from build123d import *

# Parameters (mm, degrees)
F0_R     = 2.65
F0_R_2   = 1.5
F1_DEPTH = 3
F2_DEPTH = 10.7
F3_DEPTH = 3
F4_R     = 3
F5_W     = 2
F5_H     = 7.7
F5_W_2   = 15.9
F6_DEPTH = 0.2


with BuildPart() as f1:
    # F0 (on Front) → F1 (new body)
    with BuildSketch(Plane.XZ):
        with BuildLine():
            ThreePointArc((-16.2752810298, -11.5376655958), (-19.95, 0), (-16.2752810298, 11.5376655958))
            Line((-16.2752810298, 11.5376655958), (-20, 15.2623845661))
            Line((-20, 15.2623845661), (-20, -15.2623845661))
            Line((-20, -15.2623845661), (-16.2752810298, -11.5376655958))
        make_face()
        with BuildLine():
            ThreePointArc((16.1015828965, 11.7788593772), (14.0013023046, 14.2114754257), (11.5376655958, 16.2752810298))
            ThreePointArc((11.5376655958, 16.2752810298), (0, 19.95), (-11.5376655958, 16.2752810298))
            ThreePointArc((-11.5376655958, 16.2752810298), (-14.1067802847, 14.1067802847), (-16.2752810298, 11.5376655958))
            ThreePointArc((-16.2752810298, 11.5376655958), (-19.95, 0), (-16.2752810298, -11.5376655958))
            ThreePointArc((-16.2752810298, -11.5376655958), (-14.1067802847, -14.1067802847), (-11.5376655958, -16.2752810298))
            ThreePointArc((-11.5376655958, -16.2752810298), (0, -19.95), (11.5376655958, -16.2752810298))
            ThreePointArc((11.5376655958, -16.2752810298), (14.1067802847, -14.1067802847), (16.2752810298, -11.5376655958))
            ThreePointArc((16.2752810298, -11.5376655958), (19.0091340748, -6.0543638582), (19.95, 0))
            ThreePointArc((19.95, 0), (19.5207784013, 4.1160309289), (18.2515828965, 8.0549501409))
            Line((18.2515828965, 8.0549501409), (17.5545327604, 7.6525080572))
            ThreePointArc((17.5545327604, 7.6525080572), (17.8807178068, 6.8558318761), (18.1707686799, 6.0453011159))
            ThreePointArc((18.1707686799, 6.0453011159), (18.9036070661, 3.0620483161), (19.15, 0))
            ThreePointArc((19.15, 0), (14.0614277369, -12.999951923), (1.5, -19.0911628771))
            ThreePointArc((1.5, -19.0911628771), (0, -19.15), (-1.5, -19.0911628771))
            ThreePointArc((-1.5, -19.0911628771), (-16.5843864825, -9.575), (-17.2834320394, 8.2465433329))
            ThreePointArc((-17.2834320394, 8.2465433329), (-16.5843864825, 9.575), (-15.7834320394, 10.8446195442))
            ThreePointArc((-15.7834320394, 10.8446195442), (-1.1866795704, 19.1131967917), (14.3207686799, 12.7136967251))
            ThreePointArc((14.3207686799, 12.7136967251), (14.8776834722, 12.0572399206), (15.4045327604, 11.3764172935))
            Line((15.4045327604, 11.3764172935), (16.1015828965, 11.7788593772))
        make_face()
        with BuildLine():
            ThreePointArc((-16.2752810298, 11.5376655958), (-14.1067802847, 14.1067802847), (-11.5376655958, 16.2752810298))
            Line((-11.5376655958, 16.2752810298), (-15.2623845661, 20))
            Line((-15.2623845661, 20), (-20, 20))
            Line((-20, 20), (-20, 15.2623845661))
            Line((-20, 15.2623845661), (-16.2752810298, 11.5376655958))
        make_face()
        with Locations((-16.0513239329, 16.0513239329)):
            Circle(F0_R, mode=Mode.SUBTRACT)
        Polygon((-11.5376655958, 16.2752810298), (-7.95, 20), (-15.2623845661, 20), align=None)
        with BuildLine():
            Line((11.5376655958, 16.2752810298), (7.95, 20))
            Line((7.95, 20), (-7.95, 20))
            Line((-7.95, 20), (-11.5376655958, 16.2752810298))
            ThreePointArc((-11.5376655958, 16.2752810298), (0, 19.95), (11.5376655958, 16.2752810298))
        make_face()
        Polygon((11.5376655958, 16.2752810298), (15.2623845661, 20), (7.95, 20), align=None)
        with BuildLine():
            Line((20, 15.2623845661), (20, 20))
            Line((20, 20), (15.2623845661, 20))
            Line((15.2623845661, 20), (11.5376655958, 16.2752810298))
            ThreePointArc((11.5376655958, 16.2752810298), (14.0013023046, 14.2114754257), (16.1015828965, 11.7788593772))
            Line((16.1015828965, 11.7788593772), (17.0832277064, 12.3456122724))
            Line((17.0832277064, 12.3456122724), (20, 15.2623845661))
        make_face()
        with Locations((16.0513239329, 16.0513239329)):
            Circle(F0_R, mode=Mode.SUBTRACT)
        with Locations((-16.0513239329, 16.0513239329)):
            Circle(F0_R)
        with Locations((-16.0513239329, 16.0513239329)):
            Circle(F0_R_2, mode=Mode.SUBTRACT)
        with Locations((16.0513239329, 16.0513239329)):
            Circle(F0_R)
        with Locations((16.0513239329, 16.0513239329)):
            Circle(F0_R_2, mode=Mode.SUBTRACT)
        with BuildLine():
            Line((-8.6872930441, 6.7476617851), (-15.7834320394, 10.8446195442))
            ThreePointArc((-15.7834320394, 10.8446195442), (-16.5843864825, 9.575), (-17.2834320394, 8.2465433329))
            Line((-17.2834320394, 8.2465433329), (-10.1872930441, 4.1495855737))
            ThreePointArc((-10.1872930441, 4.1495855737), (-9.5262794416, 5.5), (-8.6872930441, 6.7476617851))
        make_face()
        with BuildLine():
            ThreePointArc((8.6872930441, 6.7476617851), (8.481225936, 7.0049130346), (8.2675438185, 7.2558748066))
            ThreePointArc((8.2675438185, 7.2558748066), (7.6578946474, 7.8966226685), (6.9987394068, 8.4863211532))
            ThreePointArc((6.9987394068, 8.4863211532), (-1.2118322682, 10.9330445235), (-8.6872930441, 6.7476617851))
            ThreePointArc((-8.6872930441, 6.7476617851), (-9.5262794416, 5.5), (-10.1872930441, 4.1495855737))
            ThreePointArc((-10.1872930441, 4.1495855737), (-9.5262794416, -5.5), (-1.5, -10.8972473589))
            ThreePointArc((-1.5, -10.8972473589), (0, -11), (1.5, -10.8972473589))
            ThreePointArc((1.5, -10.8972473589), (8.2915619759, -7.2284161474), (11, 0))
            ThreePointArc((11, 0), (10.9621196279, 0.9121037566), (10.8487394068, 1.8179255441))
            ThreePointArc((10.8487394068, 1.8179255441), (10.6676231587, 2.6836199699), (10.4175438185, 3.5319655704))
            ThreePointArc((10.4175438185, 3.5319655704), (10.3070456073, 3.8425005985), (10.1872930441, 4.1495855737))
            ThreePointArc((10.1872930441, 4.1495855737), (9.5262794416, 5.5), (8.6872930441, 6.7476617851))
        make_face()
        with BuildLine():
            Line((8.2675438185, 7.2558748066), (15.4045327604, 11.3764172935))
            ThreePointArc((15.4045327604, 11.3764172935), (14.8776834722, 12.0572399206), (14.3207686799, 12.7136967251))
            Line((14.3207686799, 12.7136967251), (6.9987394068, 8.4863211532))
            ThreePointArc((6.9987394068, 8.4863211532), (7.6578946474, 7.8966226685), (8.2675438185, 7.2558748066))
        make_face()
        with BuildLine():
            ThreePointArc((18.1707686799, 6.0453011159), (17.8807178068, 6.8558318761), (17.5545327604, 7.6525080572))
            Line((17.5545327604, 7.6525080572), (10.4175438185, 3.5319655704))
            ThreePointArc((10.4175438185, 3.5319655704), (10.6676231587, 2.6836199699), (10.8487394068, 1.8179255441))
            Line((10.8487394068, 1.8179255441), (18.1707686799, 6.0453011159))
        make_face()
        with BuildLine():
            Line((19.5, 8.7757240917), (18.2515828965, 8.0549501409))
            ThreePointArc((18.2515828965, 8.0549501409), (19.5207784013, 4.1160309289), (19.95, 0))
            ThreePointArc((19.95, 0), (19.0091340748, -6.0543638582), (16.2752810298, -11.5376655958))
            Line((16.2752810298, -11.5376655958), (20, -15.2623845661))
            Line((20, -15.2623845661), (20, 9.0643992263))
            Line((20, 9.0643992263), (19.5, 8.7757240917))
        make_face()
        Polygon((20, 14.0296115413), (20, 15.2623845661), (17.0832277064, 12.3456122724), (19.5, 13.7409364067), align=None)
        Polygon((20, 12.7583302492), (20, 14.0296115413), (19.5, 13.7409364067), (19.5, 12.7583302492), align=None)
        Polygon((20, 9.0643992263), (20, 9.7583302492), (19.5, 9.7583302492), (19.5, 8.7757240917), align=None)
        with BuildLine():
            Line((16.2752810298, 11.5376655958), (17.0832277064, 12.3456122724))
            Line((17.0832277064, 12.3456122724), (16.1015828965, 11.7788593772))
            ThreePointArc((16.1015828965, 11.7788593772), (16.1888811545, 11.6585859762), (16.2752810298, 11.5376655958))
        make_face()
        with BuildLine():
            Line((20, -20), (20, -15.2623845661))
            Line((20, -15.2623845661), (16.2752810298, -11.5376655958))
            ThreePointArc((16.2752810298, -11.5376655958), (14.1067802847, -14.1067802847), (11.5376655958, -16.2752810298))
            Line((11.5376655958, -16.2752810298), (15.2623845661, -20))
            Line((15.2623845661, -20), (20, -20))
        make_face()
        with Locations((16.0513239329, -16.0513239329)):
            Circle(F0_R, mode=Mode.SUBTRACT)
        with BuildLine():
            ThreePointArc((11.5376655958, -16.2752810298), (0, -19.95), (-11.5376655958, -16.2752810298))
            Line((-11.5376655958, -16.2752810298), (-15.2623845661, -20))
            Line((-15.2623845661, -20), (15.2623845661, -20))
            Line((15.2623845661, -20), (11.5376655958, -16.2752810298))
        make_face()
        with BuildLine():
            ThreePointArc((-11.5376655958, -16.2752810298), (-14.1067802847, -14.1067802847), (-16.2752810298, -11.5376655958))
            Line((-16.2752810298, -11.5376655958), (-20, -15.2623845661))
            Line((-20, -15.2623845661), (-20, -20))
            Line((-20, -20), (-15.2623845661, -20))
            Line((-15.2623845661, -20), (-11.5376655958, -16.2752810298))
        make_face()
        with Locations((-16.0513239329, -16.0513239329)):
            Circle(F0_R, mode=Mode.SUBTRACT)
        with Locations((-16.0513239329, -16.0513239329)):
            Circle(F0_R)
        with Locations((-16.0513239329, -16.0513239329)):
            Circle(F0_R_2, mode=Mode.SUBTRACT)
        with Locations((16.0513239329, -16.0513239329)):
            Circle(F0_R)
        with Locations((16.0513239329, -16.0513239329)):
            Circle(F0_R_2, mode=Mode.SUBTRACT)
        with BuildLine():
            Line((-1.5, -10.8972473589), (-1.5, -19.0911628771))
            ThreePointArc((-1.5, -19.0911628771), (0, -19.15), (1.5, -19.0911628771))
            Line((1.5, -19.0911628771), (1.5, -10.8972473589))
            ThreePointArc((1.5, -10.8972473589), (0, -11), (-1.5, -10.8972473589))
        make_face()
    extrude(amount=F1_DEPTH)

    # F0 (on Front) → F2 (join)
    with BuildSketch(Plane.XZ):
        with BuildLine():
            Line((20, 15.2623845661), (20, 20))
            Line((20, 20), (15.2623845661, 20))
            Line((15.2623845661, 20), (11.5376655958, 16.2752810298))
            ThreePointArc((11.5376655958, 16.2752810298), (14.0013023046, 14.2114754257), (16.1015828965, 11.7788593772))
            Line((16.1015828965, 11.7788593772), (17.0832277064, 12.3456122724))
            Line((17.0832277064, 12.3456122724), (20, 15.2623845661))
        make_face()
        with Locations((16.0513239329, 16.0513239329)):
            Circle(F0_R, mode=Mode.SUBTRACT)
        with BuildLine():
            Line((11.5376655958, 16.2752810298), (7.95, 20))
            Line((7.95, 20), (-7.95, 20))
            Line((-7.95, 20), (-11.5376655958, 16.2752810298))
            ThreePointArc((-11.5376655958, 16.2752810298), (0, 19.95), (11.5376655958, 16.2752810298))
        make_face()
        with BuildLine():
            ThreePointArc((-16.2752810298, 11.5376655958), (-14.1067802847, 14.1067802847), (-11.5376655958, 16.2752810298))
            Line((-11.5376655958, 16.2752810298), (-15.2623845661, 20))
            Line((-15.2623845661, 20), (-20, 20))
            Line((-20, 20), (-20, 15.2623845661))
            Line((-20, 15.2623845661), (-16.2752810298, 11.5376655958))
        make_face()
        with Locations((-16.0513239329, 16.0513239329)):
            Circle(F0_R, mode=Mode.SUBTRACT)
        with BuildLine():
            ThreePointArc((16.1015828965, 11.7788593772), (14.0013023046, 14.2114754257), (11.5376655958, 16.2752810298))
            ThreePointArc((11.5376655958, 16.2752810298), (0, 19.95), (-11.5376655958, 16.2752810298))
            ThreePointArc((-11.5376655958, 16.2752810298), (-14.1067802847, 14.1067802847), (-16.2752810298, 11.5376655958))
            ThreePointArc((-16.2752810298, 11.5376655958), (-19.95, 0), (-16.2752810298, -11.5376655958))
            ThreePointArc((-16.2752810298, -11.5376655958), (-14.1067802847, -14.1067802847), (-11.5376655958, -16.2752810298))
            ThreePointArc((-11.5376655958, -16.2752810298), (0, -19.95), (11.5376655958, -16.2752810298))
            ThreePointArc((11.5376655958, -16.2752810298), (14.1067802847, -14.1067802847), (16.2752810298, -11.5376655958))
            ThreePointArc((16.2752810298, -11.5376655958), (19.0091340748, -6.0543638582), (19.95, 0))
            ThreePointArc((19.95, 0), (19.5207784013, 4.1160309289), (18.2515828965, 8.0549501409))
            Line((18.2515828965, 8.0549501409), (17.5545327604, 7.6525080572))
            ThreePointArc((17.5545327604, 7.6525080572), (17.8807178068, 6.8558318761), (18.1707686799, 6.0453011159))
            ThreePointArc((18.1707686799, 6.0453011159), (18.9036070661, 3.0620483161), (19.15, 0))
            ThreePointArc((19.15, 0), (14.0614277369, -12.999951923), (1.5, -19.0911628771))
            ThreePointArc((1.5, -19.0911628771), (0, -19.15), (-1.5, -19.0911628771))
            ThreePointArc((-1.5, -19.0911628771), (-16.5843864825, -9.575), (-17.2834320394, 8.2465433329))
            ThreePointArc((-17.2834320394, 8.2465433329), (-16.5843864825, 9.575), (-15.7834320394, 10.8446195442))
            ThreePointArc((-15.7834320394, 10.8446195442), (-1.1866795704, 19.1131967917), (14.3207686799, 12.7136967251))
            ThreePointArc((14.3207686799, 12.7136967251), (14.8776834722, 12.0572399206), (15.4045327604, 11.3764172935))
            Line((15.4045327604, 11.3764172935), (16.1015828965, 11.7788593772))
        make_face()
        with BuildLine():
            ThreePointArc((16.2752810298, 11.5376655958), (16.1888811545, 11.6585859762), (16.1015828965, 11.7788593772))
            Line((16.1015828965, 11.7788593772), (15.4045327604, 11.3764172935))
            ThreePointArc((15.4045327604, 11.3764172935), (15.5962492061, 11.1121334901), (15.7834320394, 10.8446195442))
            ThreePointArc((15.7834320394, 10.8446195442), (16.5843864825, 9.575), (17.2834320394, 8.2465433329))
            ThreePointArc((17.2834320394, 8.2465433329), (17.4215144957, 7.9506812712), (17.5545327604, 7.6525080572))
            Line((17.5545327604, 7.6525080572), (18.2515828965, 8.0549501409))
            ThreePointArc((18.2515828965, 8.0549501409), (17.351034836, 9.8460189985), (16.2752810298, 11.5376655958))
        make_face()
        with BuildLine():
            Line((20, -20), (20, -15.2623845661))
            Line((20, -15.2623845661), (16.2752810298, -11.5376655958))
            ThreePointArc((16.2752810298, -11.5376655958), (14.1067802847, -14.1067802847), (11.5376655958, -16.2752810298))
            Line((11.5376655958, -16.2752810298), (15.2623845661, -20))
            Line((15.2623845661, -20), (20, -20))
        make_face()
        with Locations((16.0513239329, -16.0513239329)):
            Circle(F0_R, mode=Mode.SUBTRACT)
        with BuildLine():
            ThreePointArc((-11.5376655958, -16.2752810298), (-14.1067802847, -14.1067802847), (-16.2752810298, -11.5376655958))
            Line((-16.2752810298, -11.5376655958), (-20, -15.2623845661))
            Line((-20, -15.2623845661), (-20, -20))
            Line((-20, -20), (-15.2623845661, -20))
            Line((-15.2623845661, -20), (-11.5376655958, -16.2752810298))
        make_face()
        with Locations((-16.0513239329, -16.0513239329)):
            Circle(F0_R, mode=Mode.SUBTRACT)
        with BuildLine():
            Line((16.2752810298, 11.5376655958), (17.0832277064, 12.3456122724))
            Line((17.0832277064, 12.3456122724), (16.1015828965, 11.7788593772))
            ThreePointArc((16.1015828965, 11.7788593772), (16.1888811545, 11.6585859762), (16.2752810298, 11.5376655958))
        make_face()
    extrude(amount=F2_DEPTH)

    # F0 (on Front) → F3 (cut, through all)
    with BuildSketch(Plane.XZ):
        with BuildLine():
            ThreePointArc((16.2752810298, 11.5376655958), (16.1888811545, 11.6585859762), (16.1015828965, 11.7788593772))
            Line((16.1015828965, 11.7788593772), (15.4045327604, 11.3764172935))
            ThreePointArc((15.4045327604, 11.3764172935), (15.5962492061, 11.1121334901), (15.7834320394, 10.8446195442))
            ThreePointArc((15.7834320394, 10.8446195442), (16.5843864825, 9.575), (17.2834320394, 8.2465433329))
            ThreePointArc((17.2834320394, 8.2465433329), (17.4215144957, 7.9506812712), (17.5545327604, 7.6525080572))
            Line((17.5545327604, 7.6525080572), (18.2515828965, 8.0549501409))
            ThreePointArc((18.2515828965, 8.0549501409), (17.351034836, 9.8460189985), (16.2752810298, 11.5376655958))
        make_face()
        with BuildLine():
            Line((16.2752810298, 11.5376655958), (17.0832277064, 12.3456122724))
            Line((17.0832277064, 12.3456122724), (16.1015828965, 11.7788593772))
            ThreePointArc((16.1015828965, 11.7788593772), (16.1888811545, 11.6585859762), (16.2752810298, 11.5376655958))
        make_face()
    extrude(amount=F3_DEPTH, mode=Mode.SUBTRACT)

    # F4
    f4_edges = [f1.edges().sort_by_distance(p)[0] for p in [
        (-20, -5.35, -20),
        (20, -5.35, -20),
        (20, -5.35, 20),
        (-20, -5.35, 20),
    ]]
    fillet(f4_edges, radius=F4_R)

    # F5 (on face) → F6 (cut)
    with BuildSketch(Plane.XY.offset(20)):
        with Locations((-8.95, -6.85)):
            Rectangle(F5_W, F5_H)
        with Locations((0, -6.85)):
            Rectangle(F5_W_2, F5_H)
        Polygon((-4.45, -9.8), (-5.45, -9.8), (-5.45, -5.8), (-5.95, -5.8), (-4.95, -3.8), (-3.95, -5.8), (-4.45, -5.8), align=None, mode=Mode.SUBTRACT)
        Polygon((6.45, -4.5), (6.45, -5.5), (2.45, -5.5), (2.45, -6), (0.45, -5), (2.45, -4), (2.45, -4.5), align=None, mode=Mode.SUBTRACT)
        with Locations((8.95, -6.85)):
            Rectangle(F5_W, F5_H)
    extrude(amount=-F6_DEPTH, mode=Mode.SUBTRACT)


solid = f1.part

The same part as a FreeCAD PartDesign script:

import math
import FreeCAD as App
import Part
import Sketcher

V = App.Vector
Q = App.Units.Quantity


def edges_at(feature, points):
    """Names of the edges that pass closest to the given points."""
    edges = feature.Shape.Edges
    near = lambda p: min(range(len(edges)), key=lambda i: edges[i].distToShape(Part.Vertex(*p))[0])
    return sorted({f"Edge{near(p) + 1}" for p in points})


def add_polygon(sketch, points):
    """Adds a closed chain of lines whose ends are joined by coincident constraints."""
    first, n = sketch.GeometryCount, len(points)
    for a, b in zip(points, points[1:] + points[:1]):
        sketch.addGeometry(Part.LineSegment(App.Vector(*a, 0), App.Vector(*b, 0)), False)
    for i in range(n):
        sketch.addConstraint(Sketcher.Constraint("Coincident", first + i, 2, first + (i + 1) % n, 1))

doc = App.newDocument("Part")
params = doc.addObject("Spreadsheet::Sheet", "Params")
for row, (alias, value) in enumerate([
    ("sketch1_diameter", "3 mm"),
    ("sketch1_radius", "11 mm"),
    ("sketch1_width", "40 mm"),
    ("sketch1_radius2", "19.950001 mm"),
    ("sketch1_radius3", "19.15 mm"),
    ("pad1_length", "3 mm"),
    ("sketch2_diameter", "5.3 mm"),
    ("sketch2_radius", "19.95 mm"),
    ("sketch2_radius2", "19.15 mm"),
    ("sketch2_width", "15.9 mm"),
    ("pad2_length", "10.7 mm"),
    ("sketch3_radius", "19.15 mm"),
    ("sketch3_radius2", "19.95 mm"),
    ("pocket1_length", "3 mm"),
    ("fillet_radius", "3 mm"),
    ("sketch4_width", "1 mm"),
    ("sketch4_width2", "4 mm"),
    ("sketch4_width3", "19.9 mm"),
    ("sketch4_width4", "0.5 mm"),
    ("sketch4_height", "7.7 mm"),
    ("pocket2_length", "0.2 mm"),
], start=1):
    params.set(f"A{row}", alias)
    params.set(f"B{row}", "=" + value)
    params.setAlias(f"B{row}", alias)

body = doc.addObject("PartDesign::Body", "Body")

# Sketch on XZ plane
sketch1 = body.newObject("Sketcher::SketchObject", "Sketch")
sketch1.AttachmentSupport = (doc.getObject("XZ_Plane"), [""])
sketch1.MapMode = "FlatFace"
sketch1.addGeometry(Part.LineSegment(V(20, -20, 0), V(20, 9.76, 0)), False)
sketch1.addGeometry(Part.LineSegment(V(20, 9.76, 0), V(19.5, 9.76, 0)), False)
sketch1.addGeometry(Part.LineSegment(V(19.5, 9.76, 0), V(19.5, 8.78, 0)), False)
sketch1.addGeometry(Part.LineSegment(V(19.5, 8.78, 0), V(18.25, 8.05, 0)), False)
sketch1.addGeometry(Part.LineSegment(V(18.25, 8.05, 0), V(17.55, 7.65, 0)), False)
sketch1.addGeometry(Part.LineSegment(V(17.55, 7.65, 0), V(10.42, 3.53, 0)), False)
sketch1.addGeometry(Part.ArcOfCircle(Part.Circle(V(0, 0, 0), V(0, 0, 1), 11), math.radians(18.73), math.radians(22.16)), False)
sketch1.addGeometry(Part.ArcOfCircle(Part.Circle(V(0, 0, 0), V(0, 0, 1), 11), math.radians(22.16), math.radians(37.84)), False)
sketch1.addGeometry(Part.ArcOfCircle(Part.Circle(V(0, 0, 0), V(0, 0, 1), 11), math.radians(37.84), math.radians(41.27)), False)
sketch1.addGeometry(Part.LineSegment(V(8.27, 7.26, 0), V(15.4, 11.38, 0)), False)
sketch1.addGeometry(Part.LineSegment(V(15.4, 11.38, 0), V(16.1, 11.78, 0)), False)
sketch1.addGeometry(Part.ArcOfCircle(Part.Circle(V(0, 0, 0), V(0, 0, 1), 19.95), math.radians(35.33), math.radians(36.19)), False)
sketch1.addGeometry(Part.LineSegment(V(16.28, 11.54, 0), V(17.08, 12.35, 0)), False)
sketch1.addGeometry(Part.LineSegment(V(17.08, 12.35, 0), V(19.5, 13.74, 0)), False)
sketch1.addGeometry(Part.LineSegment(V(19.5, 13.74, 0), V(19.5, 12.76, 0)), False)
sketch1.addGeometry(Part.LineSegment(V(19.5, 12.76, 0), V(20, 12.76, 0)), False)
sketch1.addGeometry(Part.LineSegment(V(20, 12.76, 0), V(20, 20, 0)), False)
sketch1.addGeometry(Part.LineSegment(V(20, 20, 0), V(-20, 20, 0)), False)
sketch1.addGeometry(Part.LineSegment(V(-20, 20, 0), V(-20, -20, 0)), False)
sketch1.addGeometry(Part.LineSegment(V(-20, -20, 0), V(20, -20, 0)), False)
sketch1.addGeometry(Part.Circle(V(-16.05, -16.05, 0), V(0, 0, 1), 1.5), False)
sketch1.addGeometry(Part.ArcOfCircle(Part.Circle(V(0, 0, 0), V(0, 0, 1), 19.15), math.radians(0), math.radians(18.4)), False)
sketch1.addGeometry(Part.ArcOfCircle(Part.Circle(V(0, 0, 0), V(0, 0, 1), 19.15), math.radians(-86), math.radians(0)), False)
sketch1.addGeometry(Part.LineSegment(V(1.5, -19.09, 0), V(1.5, -10.9, 0)), False)
sketch1.addGeometry(Part.ArcOfCircle(Part.Circle(V(0, 0, 0), V(0, 0, 1), 11), math.radians(-82), math.radians(0)), False)
sketch1.addGeometry(Part.ArcOfCircle(Part.Circle(V(0, 0, 0), V(0, 0, 1), 11), math.radians(0), math.radians(9.51)), False)
sketch1.addGeometry(Part.LineSegment(V(10.85, 1.82, 0), V(18.17, 6.05, 0)), False)
sketch1.addGeometry(Part.ArcOfCircle(Part.Circle(V(0, 0, 0), V(0, 0, 1), 19.15), math.radians(154), math.radians(266)), False)
sketch1.addGeometry(Part.LineSegment(V(-17.28, 8.25, 0), V(-10.19, 4.15, 0)), False)
sketch1.addGeometry(Part.ArcOfCircle(Part.Circle(V(0, 0, 0), V(0, 0, 1), 11), math.radians(158), math.radians(262)), False)
sketch1.addGeometry(Part.LineSegment(V(-1.5, -10.9, 0), V(-1.5, -19.09, 0)), False)
sketch1.addGeometry(Part.Circle(V(16.05, -16.05, 0), V(0, 0, 1), 1.5), False)
sketch1.addGeometry(Part.Circle(V(-16.05, 16.05, 0), V(0, 0, 1), 1.5), False)
sketch1.addGeometry(Part.ArcOfCircle(Part.Circle(V(0, 0, 0), V(0, 0, 1), 11), math.radians(50), math.radians(142)), False)
sketch1.addGeometry(Part.LineSegment(V(-8.69, 6.75, 0), V(-15.78, 10.84, 0)), False)
sketch1.addGeometry(Part.ArcOfCircle(Part.Circle(V(0, 0, 0), V(0, 0, 1), 19.15), math.radians(42), math.radians(146)), False)
sketch1.addGeometry(Part.LineSegment(V(14.32, 12.71, 0), V(7, 8.49, 0)), False)
sketch1.addGeometry(Part.Circle(V(16.05, 16.05, 0), V(0, 0, 1), 1.5), False)
sketch1.addConstraint(Sketcher.Constraint("Coincident", 0, 2, 1, 1))
sketch1.addConstraint(Sketcher.Constraint("Coincident", 1, 2, 2, 1))
sketch1.addConstraint(Sketcher.Constraint("Coincident", 2, 2, 3, 1))
sketch1.addConstraint(Sketcher.Constraint("Coincident", 3, 2, 4, 1))
sketch1.addConstraint(Sketcher.Constraint("Coincident", 4, 2, 5, 1))
sketch1.addConstraint(Sketcher.Constraint("Coincident", 5, 2, 6, 1))
sketch1.addConstraint(Sketcher.Constraint("Tangent", 6, 2, 7, 1))
sketch1.addConstraint(Sketcher.Constraint("Tangent", 7, 2, 8, 1))
sketch1.addConstraint(Sketcher.Constraint("Coincident", 8, 2, 9, 1))
sketch1.addConstraint(Sketcher.Constraint("Coincident", 9, 2, 10, 1))
sketch1.addConstraint(Sketcher.Constraint("Coincident", 10, 2, 11, 2))
sketch1.addConstraint(Sketcher.Constraint("Coincident", 11, 1, 12, 1))
sketch1.addConstraint(Sketcher.Constraint("Coincident", 12, 2, 13, 1))
sketch1.addConstraint(Sketcher.Constraint("Coincident", 13, 2, 14, 1))
sketch1.addConstraint(Sketcher.Constraint("Coincident", 14, 2, 15, 1))
sketch1.addConstraint(Sketcher.Constraint("Coincident", 15, 2, 16, 1))
sketch1.addConstraint(Sketcher.Constraint("Coincident", 16, 2, 17, 1))
sketch1.addConstraint(Sketcher.Constraint("Coincident", 17, 2, 18, 1))
sketch1.addConstraint(Sketcher.Constraint("Coincident", 18, 2, 19, 1))
sketch1.addConstraint(Sketcher.Constraint("Coincident", 19, 2, 0, 1))
sketch1.addConstraint(Sketcher.Constraint("Tangent", 21, 1, 22, 2))
sketch1.addConstraint(Sketcher.Constraint("Coincident", 22, 1, 23, 1))
sketch1.addConstraint(Sketcher.Constraint("Coincident", 23, 2, 24, 1))
sketch1.addConstraint(Sketcher.Constraint("Tangent", 24, 2, 25, 1))
sketch1.addConstraint(Sketcher.Constraint("Coincident", 25, 2, 26, 1))
sketch1.addConstraint(Sketcher.Constraint("Coincident", 26, 2, 21, 2))
sketch1.addConstraint(Sketcher.Constraint("Coincident", 27, 1, 28, 1))
sketch1.addConstraint(Sketcher.Constraint("Coincident", 28, 2, 29, 1))
sketch1.addConstraint(Sketcher.Constraint("Coincident", 29, 2, 30, 1))
sketch1.addConstraint(Sketcher.Constraint("Coincident", 30, 2, 27, 2))
sketch1.addConstraint(Sketcher.Constraint("Coincident", 33, 2, 34, 1))
sketch1.addConstraint(Sketcher.Constraint("Coincident", 34, 2, 35, 2))
sketch1.addConstraint(Sketcher.Constraint("Coincident", 35, 1, 36, 1))
sketch1.addConstraint(Sketcher.Constraint("Coincident", 36, 2, 33, 1))
sketch1.addConstraint(Sketcher.Constraint("Vertical", 0))
sketch1.addConstraint(Sketcher.Constraint("Horizontal", 1))
sketch1.addConstraint(Sketcher.Constraint("Vertical", 2))
sketch1.addConstraint(Sketcher.Constraint("Vertical", 14))
sketch1.addConstraint(Sketcher.Constraint("Horizontal", 15))
sketch1.addConstraint(Sketcher.Constraint("Vertical", 16))
sketch1.addConstraint(Sketcher.Constraint("Horizontal", 17))
sketch1.addConstraint(Sketcher.Constraint("Vertical", 18))
sketch1.addConstraint(Sketcher.Constraint("Horizontal", 19))
sketch1.addConstraint(Sketcher.Constraint("Vertical", 23))
sketch1.addConstraint(Sketcher.Constraint("Vertical", 30))
sketch1.addConstraint(Sketcher.Constraint("Coincident", 6, 3, -1, 1))
sketch1.addConstraint(Sketcher.Constraint("Coincident", 8, 3, -1, 1))
sketch1.addConstraint(Sketcher.Constraint("Coincident", 11, 3, -1, 1))
sketch1.addConstraint(Sketcher.Constraint("Coincident", 21, 3, -1, 1))
sketch1.addConstraint(Sketcher.Constraint("Coincident", 24, 3, -1, 1))
sketch1.addConstraint(Sketcher.Constraint("Coincident", 27, 3, -1, 1))
sketch1.addConstraint(Sketcher.Constraint("Coincident", 29, 3, -1, 1))
sketch1.addConstraint(Sketcher.Constraint("Coincident", 33, 3, -1, 1))
sketch1.addConstraint(Sketcher.Constraint("Coincident", 35, 3, -1, 1))
sketch1.addConstraint(Sketcher.Constraint("Equal", 21, 22))
sketch1.addConstraint(Sketcher.Constraint("Equal", 8, 24))
sketch1.addConstraint(Sketcher.Constraint("Equal", 24, 25))
sketch1.addConstraint(Sketcher.Constraint("Equal", 22, 27))
sketch1.addConstraint(Sketcher.Constraint("Equal", 25, 29))
sketch1.addConstraint(Sketcher.Constraint("Equal", 20, 31))
sketch1.addConstraint(Sketcher.Constraint("Equal", 31, 32))
sketch1.addConstraint(Sketcher.Constraint("Equal", 29, 33))
sketch1.addConstraint(Sketcher.Constraint("Equal", 27, 35))
sketch1.addConstraint(Sketcher.Constraint("Equal", 32, 37))
sketch1.addConstraint(Sketcher.Constraint("Symmetric", 31, 3, 32, 3, -1, 1))
sketch1.addConstraint(Sketcher.Constraint("Symmetric", 20, 3, 37, 3, -1, 1))
sketch1.addConstraint(Sketcher.Constraint("Symmetric", 16, 2, 18, 2, -1, 1))
sketch1.addConstraint(Sketcher.Constraint("Symmetric", 20, 3, 31, 3, -2))
sketch1.addConstraint(Sketcher.Constraint("PointOnObject", 21, 1, -1))
sketch1.addConstraint(Sketcher.Constraint("PointOnObject", 24, 2, -1))
sketch1.addConstraint(Sketcher.Constraint("Parallel", 3, 4))
sketch1.addConstraint(Sketcher.Constraint("Parallel", 4, 5))
sketch1.addConstraint(Sketcher.Constraint("Parallel", 5, 9))
sketch1.addConstraint(Sketcher.Constraint("Parallel", 9, 10))
sketch1.addConstraint(Sketcher.Constraint("Parallel", 10, 13))
sketch1.addConstraint(Sketcher.Constraint("Parallel", 13, 26))
sketch1.addConstraint(Sketcher.Constraint("Parallel", 28, 34))
sketch1.addConstraint(Sketcher.Constraint("Parallel", 26, 36))
sketch1.addConstraint(Sketcher.Constraint("Horizontal", 6, 2, 28, 2))
sketch1.addConstraint(Sketcher.Constraint("Horizontal", 23, 2, 29, 2))
sketch1.addConstraint(Sketcher.Constraint("Horizontal", 7, 2, 33, 2))
sketch1.addConstraint(Sketcher.Constraint("Vertical", 2, 2, 13, 2))
sketch1.addConstraint(Sketcher.Constraint("Vertical", 0, 2, 15, 2))
sketch1.addConstraint(Sketcher.Constraint("Equal", 2, 14))
sketch1.addConstraint(Sketcher.Constraint("Equal", 19, 18))
sketch1.addConstraint(Sketcher.Constraint("Equal", 5, 9))
sketch1.addConstraint(Sketcher.Constraint("Equal", 4, 10))
sketch1.addConstraint(Sketcher.Constraint("Equal", 28, 34))
sketch1.addConstraint(Sketcher.Constraint("Equal", 26, 36))
sketch1.addConstraint(Sketcher.Constraint("Diameter", 20, Q("3 mm")))
sketch1.addConstraint(Sketcher.Constraint("Radius", 6, Q("11 mm")))
sketch1.addConstraint(Sketcher.Constraint("DistanceX", 17, 2, 17, 1, Q("40 mm")))
sketch1.addConstraint(Sketcher.Constraint("Angle", 3, Q("-150 deg")))
sketch1.addConstraint(Sketcher.Constraint("Angle", 12, Q("45 deg")))
sketch1.addConstraint(Sketcher.Constraint("Angle", 28, Q("-30 deg")))
sketch1.addConstraint(Sketcher.Constraint("Radius", 11, Q("19.950001 mm")))
sketch1.addConstraint(Sketcher.Constraint("Radius", 21, Q("19.15 mm")))
sketch1.addConstraint(Sketcher.Constraint("DistanceX", 1, 2, 1, 1, Q("0.5 mm")))
sketch1.addConstraint(Sketcher.Constraint("DistanceY", 1, 2, 14, 2, Q("3 mm")))
sketch1.addConstraint(Sketcher.Constraint("DistanceX", 29, 2, 23, 2, Q("3 mm")))
sketch1.addConstraint(Sketcher.Constraint("DistanceX", 7, 2, 6, 2, Q("1.5 mm")))
sketch1.addConstraint(Sketcher.Constraint("DistanceX", 8, 2, 5, 2, Q("2.15 mm")))
sketch1.addConstraint(Sketcher.Constraint("DistanceX", 36, 2, 25, 2, Q("3.85 mm")))
sketch1.addConstraint(Sketcher.Constraint("DistanceY", 0, 1, 0, 2, Q("29.75833 mm")))
sketch1.addConstraint(Sketcher.Constraint("DistanceY", 2, 2, 37, 3, Q("7.2756 mm")))
sketch1.addConstraint(Sketcher.Constraint("DistanceX", 10, 2, 11, 1, Q("0.173698 mm")))
sketch1.addConstraint(Sketcher.Constraint("Distance", 12, Q("1.142609 mm")))
sketch1.addConstraint(Sketcher.Constraint("DistanceY", -1, 1, 4, 2, Q("7.652508 mm")))
sketch1.addConstraint(Sketcher.Constraint("DistanceX", 37, 3, 3, 2, Q("2.200259 mm")))
sketch1.setExpression("Constraints[89]", "Params.sketch1_diameter")
sketch1.setExpression("Constraints[90]", "Params.sketch1_radius")
sketch1.setExpression("Constraints[91]", "Params.sketch1_width")
sketch1.setExpression("Constraints[95]", "Params.sketch1_radius2")
sketch1.setExpression("Constraints[96]", "Params.sketch1_radius3")
pad1 = body.newObject("PartDesign::Pad", "Pad")
pad1.Profile = sketch1
pad1.setExpression("Length", "Params.pad1_length")

# Sketch on XZ plane
sketch2 = body.newObject("Sketcher::SketchObject", "Sketch001")
sketch2.AttachmentSupport = (doc.getObject("XZ_Plane"), [""])
sketch2.MapMode = "FlatFace"
sketch2.addGeometry(Part.LineSegment(V(20, 15.3, 0), V(20, 20, 0)), False)
sketch2.addGeometry(Part.LineSegment(V(20, 20, 0), V(15.3, 20, 0)), False)
sketch2.addGeometry(Part.LineSegment(V(15.3, 20, 0), V(11.5, 16.3, 0)), False)
sketch2.addGeometry(Part.LineSegment(V(11.5, 16.3, 0), V(8, 20, 0)), False)
sketch2.addGeometry(Part.LineSegment(V(8, 20, 0), V(-8, 20, 0)), False)
sketch2.addGeometry(Part.LineSegment(V(-8, 20, 0), V(-11.5, 16.3, 0)), False)
sketch2.addGeometry(Part.LineSegment(V(-11.5, 16.3, 0), V(-15.3, 20, 0)), False)
sketch2.addGeometry(Part.LineSegment(V(-15.3, 20, 0), V(-20, 20, 0)), False)
sketch2.addGeometry(Part.LineSegment(V(-20, 20, 0), V(-20, 15.3, 0)), False)
sketch2.addGeometry(Part.LineSegment(V(-20, 15.3, 0), V(-16.3, 11.5, 0)), False)
sketch2.addGeometry(Part.ArcOfCircle(Part.Circle(V(0, 0, 0), V(0, 0, 1), 19.9), math.radians(145), math.radians(215)), False)
sketch2.addGeometry(Part.LineSegment(V(-16.3, -11.5, 0), V(-20, -15.3, 0)), False)
sketch2.addGeometry(Part.LineSegment(V(-20, -15.3, 0), V(-20, -20, 0)), False)
sketch2.addGeometry(Part.LineSegment(V(-20, -20, 0), V(-15.3, -20, 0)), False)
sketch2.addGeometry(Part.LineSegment(V(-15.3, -20, 0), V(-11.5, -16.3, 0)), False)
sketch2.addGeometry(Part.ArcOfCircle(Part.Circle(V(0, 0, 0), V(0, 0, 1), 19.9), math.radians(-125), math.radians(-55)), False)
sketch2.addGeometry(Part.LineSegment(V(11.5, -16.3, 0), V(15.3, -20, 0)), False)
sketch2.addGeometry(Part.LineSegment(V(15.3, -20, 0), V(20, -20, 0)), False)
sketch2.addGeometry(Part.LineSegment(V(20, -20, 0), V(20, -15.3, 0)), False)
sketch2.addGeometry(Part.LineSegment(V(20, -15.3, 0), V(16.3, -11.5, 0)), False)
sketch2.addGeometry(Part.ArcOfCircle(Part.Circle(V(0, 0, 0), V(0, 0, 1), 19.9), math.radians(-35), math.radians(0)), False)
sketch2.addGeometry(Part.ArcOfCircle(Part.Circle(V(0, 0, 0), V(0, 0, 1), 19.9), math.radians(0), math.radians(24)), False)
sketch2.addGeometry(Part.ArcOfCircle(Part.Circle(V(0, 0, 0), V(0, 0, 1), 20), math.radians(23.81), math.radians(35.33)), False)
sketch2.addGeometry(Part.LineSegment(V(16.3, 11.5, 0), V(17.1, 12.3, 0)), False)
sketch2.addGeometry(Part.LineSegment(V(17.1, 12.3, 0), V(20, 15.3, 0)), False)
sketch2.addGeometry(Part.Circle(V(-16.1, -16.1, 0), V(0, 0, 1), 2.6), False)
sketch2.addGeometry(Part.Circle(V(16.1, -16.1, 0), V(0, 0, 1), 2.6), False)
sketch2.addGeometry(Part.Circle(V(-16.1, 16.1, 0), V(0, 0, 1), 2.6), False)
sketch2.addGeometry(Part.ArcOfCircle(Part.Circle(V(0, 0, 0), V(0, 0, 1), 19.2), math.radians(18.4), math.radians(23.55)), False)
sketch2.addGeometry(Part.ArcOfCircle(Part.Circle(V(0, 0, 0), V(0, 0, 1), 19.2), math.radians(0), math.radians(18.4)), False)
sketch2.addGeometry(Part.ArcOfCircle(Part.Circle(V(0, 0, 0), V(0, 0, 1), 19.1), math.radians(-86), math.radians(0)), False)
sketch2.addGeometry(Part.ArcOfCircle(Part.Circle(V(0, 0, 0), V(0, 0, 1), 19.1), math.radians(-94.49), math.radians(-85.51)), False)
sketch2.addGeometry(Part.ArcOfCircle(Part.Circle(V(0, 0, 0), V(0, 0, 1), 19.1), math.radians(154), math.radians(266)), False)
sketch2.addGeometry(Part.ArcOfCircle(Part.Circle(V(0, 0, 0), V(0, 0, 1), 19.2), math.radians(145.51), math.radians(154.49)), False)
sketch2.addGeometry(Part.ArcOfCircle(Part.Circle(V(0, 0, 0), V(0, 0, 1), 19.1), math.radians(42), math.radians(146)), False)
sketch2.addGeometry(Part.ArcOfCircle(Part.Circle(V(0, 0, 0), V(0, 0, 1), 19.1), math.radians(36.45), math.radians(41.6)), False)
sketch2.addGeometry(Part.ArcOfCircle(Part.Circle(V(0, 0, 0), V(0, 0, 1), 19.2), math.radians(34.49), math.radians(36.45)), False)
sketch2.addGeometry(Part.ArcOfCircle(Part.Circle(V(0, 0, 0), V(0, 0, 1), 19.2), math.radians(25.51), math.radians(34.49)), False)
sketch2.addGeometry(Part.ArcOfCircle(Part.Circle(V(0, 0, 0), V(0, 0, 1), 19.2), math.radians(23.55), math.radians(25.51)), False)
sketch2.addGeometry(Part.Circle(V(16.1, 16.1, 0), V(0, 0, 1), 2.6), False)
sketch2.addConstraint(Sketcher.Constraint("Coincident", 0, 2, 1, 1))
sketch2.addConstraint(Sketcher.Constraint("Coincident", 1, 2, 2, 1))
sketch2.addConstraint(Sketcher.Constraint("Coincident", 2, 2, 3, 1))
sketch2.addConstraint(Sketcher.Constraint("Coincident", 3, 2, 4, 1))
sketch2.addConstraint(Sketcher.Constraint("Coincident", 4, 2, 5, 1))
sketch2.addConstraint(Sketcher.Constraint("Coincident", 5, 2, 6, 1))
sketch2.addConstraint(Sketcher.Constraint("Coincident", 6, 2, 7, 1))
sketch2.addConstraint(Sketcher.Constraint("Coincident", 7, 2, 8, 1))
sketch2.addConstraint(Sketcher.Constraint("Coincident", 8, 2, 9, 1))
sketch2.addConstraint(Sketcher.Constraint("Coincident", 9, 2, 10, 1))
sketch2.addConstraint(Sketcher.Constraint("Coincident", 10, 2, 11, 1))
sketch2.addConstraint(Sketcher.Constraint("Coincident", 11, 2, 12, 1))
sketch2.addConstraint(Sketcher.Constraint("Coincident", 12, 2, 13, 1))
sketch2.addConstraint(Sketcher.Constraint("Coincident", 13, 2, 14, 1))
sketch2.addConstraint(Sketcher.Constraint("Coincident", 14, 2, 15, 1))
sketch2.addConstraint(Sketcher.Constraint("Coincident", 15, 2, 16, 1))
sketch2.addConstraint(Sketcher.Constraint("Coincident", 16, 2, 17, 1))
sketch2.addConstraint(Sketcher.Constraint("Coincident", 17, 2, 18, 1))
sketch2.addConstraint(Sketcher.Constraint("Coincident", 18, 2, 19, 1))
sketch2.addConstraint(Sketcher.Constraint("Coincident", 19, 2, 20, 1))
sketch2.addConstraint(Sketcher.Constraint("Tangent", 20, 2, 21, 1))
sketch2.addConstraint(Sketcher.Constraint("Tangent", 21, 2, 22, 1))
sketch2.addConstraint(Sketcher.Constraint("Coincident", 22, 2, 23, 1))
sketch2.addConstraint(Sketcher.Constraint("Coincident", 23, 2, 24, 1))
sketch2.addConstraint(Sketcher.Constraint("Coincident", 24, 2, 0, 1))
sketch2.addConstraint(Sketcher.Constraint("Tangent", 28, 1, 29, 2))
sketch2.addConstraint(Sketcher.Constraint("Tangent", 29, 1, 30, 2))
sketch2.addConstraint(Sketcher.Constraint("Tangent", 30, 1, 31, 2))
sketch2.addConstraint(Sketcher.Constraint("Tangent", 31, 1, 32, 2))
sketch2.addConstraint(Sketcher.Constraint("Tangent", 32, 1, 33, 2))
sketch2.addConstraint(Sketcher.Constraint("Tangent", 33, 1, 34, 2))
sketch2.addConstraint(Sketcher.Constraint("Tangent", 34, 1, 35, 2))
sketch2.addConstraint(Sketcher.Constraint("Tangent", 35, 1, 36, 2))
sketch2.addConstraint(Sketcher.Constraint("Tangent", 36, 1, 37, 2))
sketch2.addConstraint(Sketcher.Constraint("Tangent", 37, 1, 38, 2))
sketch2.addConstraint(Sketcher.Constraint("Tangent", 38, 1, 28, 2))
sketch2.addConstraint(Sketcher.Constraint("Vertical", 0))
sketch2.addConstraint(Sketcher.Constraint("Horizontal", 1))
sketch2.addConstraint(Sketcher.Constraint("Horizontal", 4))
sketch2.addConstraint(Sketcher.Constraint("Horizontal", 7))
sketch2.addConstraint(Sketcher.Constraint("Vertical", 8))
sketch2.addConstraint(Sketcher.Constraint("Vertical", 12))
sketch2.addConstraint(Sketcher.Constraint("Horizontal", 13))
sketch2.addConstraint(Sketcher.Constraint("Horizontal", 17))
sketch2.addConstraint(Sketcher.Constraint("Vertical", 18))
sketch2.addConstraint(Sketcher.Constraint("Coincident", 10, 3, -1, 1))
sketch2.addConstraint(Sketcher.Constraint("Coincident", 15, 3, -1, 1))
sketch2.addConstraint(Sketcher.Constraint("Coincident", 20, 3, -1, 1))
sketch2.addConstraint(Sketcher.Constraint("Coincident", 22, 3, -1, 1))
sketch2.addConstraint(Sketcher.Constraint("Coincident", 28, 3, -1, 1))
sketch2.addConstraint(Sketcher.Constraint("Coincident", 30, 3, -1, 1))
sketch2.addConstraint(Sketcher.Constraint("Coincident", 32, 3, -1, 1))
sketch2.addConstraint(Sketcher.Constraint("Coincident", 34, 3, -1, 1))
sketch2.addConstraint(Sketcher.Constraint("Coincident", 36, 3, -1, 1))
sketch2.addConstraint(Sketcher.Constraint("Equal", 10, 15))
sketch2.addConstraint(Sketcher.Constraint("Equal", 15, 20))
sketch2.addConstraint(Sketcher.Constraint("Equal", 25, 26))
sketch2.addConstraint(Sketcher.Constraint("Equal", 26, 27))
sketch2.addConstraint(Sketcher.Constraint("Equal", 27, 39))
sketch2.addConstraint(Sketcher.Constraint("Symmetric", 26, 3, 27, 3, -1, 1))
sketch2.addConstraint(Sketcher.Constraint("Symmetric", 25, 3, 39, 3, -1, 1))
sketch2.addConstraint(Sketcher.Constraint("Symmetric", 0, 2, 12, 2, -1, 1))
sketch2.addConstraint(Sketcher.Constraint("Symmetric", 2, 2, 14, 2, -1, 1))
sketch2.addConstraint(Sketcher.Constraint("Symmetric", 5, 2, 15, 2, -1, 1))
sketch2.addConstraint(Sketcher.Constraint("Symmetric", 6, 2, 16, 2, -1, 1))
sketch2.addConstraint(Sketcher.Constraint("Symmetric", 8, 2, 18, 2, -1, 1))
sketch2.addConstraint(Sketcher.Constraint("Symmetric", 25, 3, 26, 3, -2))
sketch2.addConstraint(Sketcher.Constraint("Symmetric", 1, 2, 6, 2, -2))
sketch2.addConstraint(Sketcher.Constraint("Symmetric", 11, 2, 18, 2, -2))
sketch2.addConstraint(Sketcher.Constraint("PointOnObject", 20, 2, -1))
sketch2.addConstraint(Sketcher.Constraint("PointOnObject", 29, 1, -1))
sketch2.addConstraint(Sketcher.Constraint("Perpendicular", 2, 6))
sketch2.addConstraint(Sketcher.Constraint("Parallel", 6, 9))
sketch2.addConstraint(Sketcher.Constraint("Perpendicular", 9, 11))
sketch2.addConstraint(Sketcher.Constraint("Parallel", 11, 14))
sketch2.addConstraint(Sketcher.Constraint("Parallel", 16, 19))
sketch2.addConstraint(Sketcher.Constraint("Perpendicular", 19, 23))
sketch2.addConstraint(Sketcher.Constraint("Parallel", 23, 24))
sketch2.addConstraint(Sketcher.Constraint("Horizontal", 1, 2, 3, 2))
sketch2.addConstraint(Sketcher.Constraint("Horizontal", 2, 2, 5, 2))
sketch2.addConstraint(Sketcher.Constraint("Horizontal", 9, 2, 22, 2))
sketch2.addConstraint(Sketcher.Constraint("Horizontal", 30, 1, 31, 1))
sketch2.addConstraint(Sketcher.Constraint("Horizontal", 33, 1, 36, 1))
sketch2.addConstraint(Sketcher.Constraint("Horizontal", 32, 1, 37, 1))
sketch2.addConstraint(Sketcher.Constraint("Equal", 17, 0))
sketch2.addConstraint(Sketcher.Constraint("Equal", 3, 5))
sketch2.addConstraint(Sketcher.Constraint("Equal", 6, 9))
sketch2.addConstraint(Sketcher.Constraint("Diameter", 25, Q("5.3 mm")))
sketch2.addConstraint(Sketcher.Constraint("Radius", 10, Q("19.95 mm")))
sketch2.addConstraint(Sketcher.Constraint("Radius", 28, Q("19.15 mm")))
sketch2.addConstraint(Sketcher.Constraint("DistanceX", 4, 2, 4, 1, Q("15.9 mm")))
sketch2.addConstraint(Sketcher.Constraint("DistanceX", -1, 1, 0, 2, Q("20 mm")))
sketch2.addConstraint(Sketcher.Constraint("DistanceX", 31, 1, 30, 1, Q("3 mm")))
sketch2.addConstraint(Sketcher.Constraint("DistanceX", 32, 1, 33, 1, Q("1.5 mm")))
sketch2.addConstraint(Sketcher.Constraint("DistanceY", -1, 1, 28, 1, Q("6.045301 mm")))
sketch2.addConstraint(Sketcher.Constraint("DistanceX", 1, 2, 21, 2, Q("2.989198 mm")))
sketch2.addConstraint(Sketcher.Constraint("DistanceX", 22, 2, 21, 2, Q("1.976302 mm")))
sketch2.addConstraint(Sketcher.Constraint("DistanceX", 35, 1, 36, 1, Q("0.378899 mm")))
sketch2.addConstraint(Sketcher.Constraint("DistanceX", 37, 1, 38, 1, Q("0.271101 mm")))
sketch2.addConstraint(Sketcher.Constraint("Distance", 23, Q("1.142609 mm")))
sketch2.addConstraint(Sketcher.Constraint("DistanceY", -1, 1, 33, 1, Q("10.84462 mm")))
sketch2.addConstraint(Sketcher.Constraint("DistanceX", -1, 1, 34, 1, Q("14.320769 mm")))
sketch2.addConstraint(Sketcher.Constraint("DistanceX", 1, 2, 39, 3, Q("0.788939 mm")))
sketch2.addConstraint(Sketcher.Constraint("DistanceY", 8, 2, 27, 3, Q("0.788939 mm")))
sketch2.setExpression("Constraints[87]", "Params.sketch2_diameter")
sketch2.setExpression("Constraints[88]", "Params.sketch2_radius")
sketch2.setExpression("Constraints[89]", "Params.sketch2_radius2")
sketch2.setExpression("Constraints[90]", "Params.sketch2_width")
pad2 = body.newObject("PartDesign::Pad", "Pad001")
pad2.Profile = sketch2
pad2.setExpression("Length", "Params.pad2_length")

# Sketch on XZ plane
sketch3 = body.newObject("Sketcher::SketchObject", "Sketch002")
sketch3.AttachmentSupport = (doc.getObject("XZ_Plane"), [""])
sketch3.MapMode = "FlatFace"
sketch3.addGeometry(Part.LineSegment(V(16.1, 11.8, 0), V(15.4, 11.4, 0)), False)
sketch3.addGeometry(Part.ArcOfCircle(Part.Circle(V(0, 0, 0), V(0, 0, 1), 19.2), math.radians(34.49), math.radians(36.45)), False)
sketch3.addGeometry(Part.ArcOfCircle(Part.Circle(V(0, 0, 0), V(0, 0, 1), 19.2), math.radians(25.51), math.radians(34.49)), False)
sketch3.addGeometry(Part.ArcOfCircle(Part.Circle(V(0, 0, 0), V(0, 0, 1), 19.2), math.radians(23.55), math.radians(25.51)), False)
sketch3.addGeometry(Part.LineSegment(V(17.6, 7.7, 0), V(18.3, 8.1, 0)), False)
sketch3.addGeometry(Part.ArcOfCircle(Part.Circle(V(0, 0, 0), V(0, 0, 1), 20), math.radians(23.81), math.radians(35.33)), False)
sketch3.addGeometry(Part.LineSegment(V(16.3, 11.5, 0), V(17.1, 12.3, 0)), False)
sketch3.addGeometry(Part.LineSegment(V(17.1, 12.3, 0), V(16.1, 11.8, 0)), False)
sketch3.addConstraint(Sketcher.Constraint("Coincident", 0, 2, 1, 2))
sketch3.addConstraint(Sketcher.Constraint("Tangent", 1, 1, 2, 2))
sketch3.addConstraint(Sketcher.Constraint("Tangent", 2, 1, 3, 2))
sketch3.addConstraint(Sketcher.Constraint("Coincident", 3, 1, 4, 1))
sketch3.addConstraint(Sketcher.Constraint("Coincident", 4, 2, 5, 1))
sketch3.addConstraint(Sketcher.Constraint("Coincident", 5, 2, 6, 1))
sketch3.addConstraint(Sketcher.Constraint("Coincident", 6, 2, 7, 1))
sketch3.addConstraint(Sketcher.Constraint("Coincident", 7, 2, 0, 1))
sketch3.addConstraint(Sketcher.Constraint("Coincident", 1, 3, -1, 1))
sketch3.addConstraint(Sketcher.Constraint("Coincident", 3, 3, -1, 1))
sketch3.addConstraint(Sketcher.Constraint("Coincident", 5, 3, -1, 1))
sketch3.addConstraint(Sketcher.Constraint("Parallel", 0, 4))
sketch3.addConstraint(Sketcher.Constraint("Parallel", 4, 7))
sketch3.addConstraint(Sketcher.Constraint("Equal", 0, 4))
sketch3.addConstraint(Sketcher.Constraint("Angle", 0, Q("-150 deg")))
sketch3.addConstraint(Sketcher.Constraint("Angle", 6, Q("45 deg")))
sketch3.addConstraint(Sketcher.Constraint("Radius", 1, Q("19.15 mm")))
sketch3.addConstraint(Sketcher.Constraint("Radius", 5, Q("19.95 mm")))
sketch3.addConstraint(Sketcher.Constraint("DistanceX", 1, 1, 2, 1, Q("1.5 mm")))
sketch3.addConstraint(Sketcher.Constraint("DistanceX", 0, 2, 3, 1, Q("2.15 mm")))
sketch3.addConstraint(Sketcher.Constraint("DistanceX", 0, 2, 1, 1, Q("0.378899 mm")))
sketch3.addConstraint(Sketcher.Constraint("DistanceX", 5, 2, 4, 2, Q("1.976302 mm")))
sketch3.addConstraint(Sketcher.Constraint("Distance", 6, Q("1.142609 mm")))
sketch3.setExpression("Constraints[16]", "Params.sketch3_radius")
sketch3.setExpression("Constraints[17]", "Params.sketch3_radius2")
pocket1 = body.newObject("PartDesign::Pocket", "Pocket")
pocket1.Profile = sketch3
pocket1.setExpression("Length", "Params.pocket1_length")
pocket1.Reversed = True
doc.recompute()

fillet = body.newObject("PartDesign::Fillet", "Fillet")
fillet.Base = (pocket1, edges_at(pocket1, [
    (-20, -5.35, -20),
    (20, -5.35, -20),
    (20, -5.35, 20),
    (-20, -5.35, 20),
]))
fillet.setExpression("Radius", "Params.fillet_radius")

# Sketch on XY plane
sketch4 = body.newObject("Sketcher::SketchObject", "Sketch003")
sketch4.AttachmentSupport = (doc.getObject("XY_Plane"), [""])
sketch4.MapMode = "FlatFace"
sketch4.AttachmentOffset = App.Placement(V(0, 0, 20), App.Rotation())
add_polygon(sketch4, [(-9.9, -3), (-9.9, -10.7), (9.9, -10.7), (9.9, -3)])  # lines 0-3
add_polygon(sketch4, [(-4.5, -5.8), (-4.5, -9.8), (-5.5, -9.8), (-5.5, -5.8), (-6, -5.8), (-5, -3.8), (-4, -5.8)])  # lines 4-10
add_polygon(sketch4, [(2.5, -4.5), (6.5, -4.5), (6.5, -5.5), (2.5, -5.5), (2.5, -6), (0.5, -5), (2.5, -4)])  # lines 11-17
sketch4.addConstraint(Sketcher.Constraint("Vertical", 0))
sketch4.addConstraint(Sketcher.Constraint("Horizontal", 1))
sketch4.addConstraint(Sketcher.Constraint("Vertical", 2))
sketch4.addConstraint(Sketcher.Constraint("Horizontal", 3))
sketch4.addConstraint(Sketcher.Constraint("Vertical", 4))
sketch4.addConstraint(Sketcher.Constraint("Horizontal", 5))
sketch4.addConstraint(Sketcher.Constraint("Vertical", 6))
sketch4.addConstraint(Sketcher.Constraint("Horizontal", 7))
sketch4.addConstraint(Sketcher.Constraint("Horizontal", 10))
sketch4.addConstraint(Sketcher.Constraint("Horizontal", 11))
sketch4.addConstraint(Sketcher.Constraint("Vertical", 12))
sketch4.addConstraint(Sketcher.Constraint("Horizontal", 13))
sketch4.addConstraint(Sketcher.Constraint("Vertical", 14))
sketch4.addConstraint(Sketcher.Constraint("Vertical", 17))
sketch4.addConstraint(Sketcher.Constraint("Perpendicular", 8, 15))
sketch4.addConstraint(Sketcher.Constraint("Perpendicular", 9, 16))
sketch4.addConstraint(Sketcher.Constraint("Horizontal", 7, 2, 9, 2))
sketch4.addConstraint(Sketcher.Constraint("Vertical", 14, 2, 16, 2))
sketch4.addConstraint(Sketcher.Constraint("Equal", 7, 10))
sketch4.addConstraint(Sketcher.Constraint("Equal", 13, 4))
sketch4.addConstraint(Sketcher.Constraint("Equal", 5, 12))
sketch4.addConstraint(Sketcher.Constraint("Equal", 10, 14))
sketch4.addConstraint(Sketcher.Constraint("Equal", 14, 17))
sketch4.addConstraint(Sketcher.Constraint("Equal", 8, 9))
sketch4.addConstraint(Sketcher.Constraint("DistanceX", 5, 2, 5, 1, Q("1 mm")))
sketch4.addConstraint(Sketcher.Constraint("DistanceX", 11, 1, 11, 2, Q("4 mm")))
sketch4.addConstraint(Sketcher.Constraint("DistanceX", 1, 1, 1, 2, Q("19.9 mm")))
sketch4.addConstraint(Sketcher.Constraint("DistanceX", 7, 2, 7, 1, Q("0.5 mm")))
sketch4.addConstraint(Sketcher.Constraint("DistanceY", 0, 2, 0, 1, Q("7.7 mm")))
sketch4.addConstraint(Sketcher.Constraint("DistanceY", 2, 2, -1, 1, Q("3 mm")))
sketch4.addConstraint(Sketcher.Constraint("DistanceY", 14, 2, -1, 1, Q("6 mm")))
sketch4.addConstraint(Sketcher.Constraint("DistanceX", 3, 2, 7, 2, Q("4 mm")))
sketch4.addConstraint(Sketcher.Constraint("DistanceY", 6, 2, 8, 2, Q("2 mm")))
sketch4.addConstraint(Sketcher.Constraint("DistanceY", 4, 2, -1, 1, Q("9.8 mm")))
sketch4.addConstraint(Sketcher.Constraint("DistanceX", 11, 2, 2, 2, Q("3.5 mm")))
sketch4.addConstraint(Sketcher.Constraint("DistanceX", 0, 2, -1, 1, Q("9.95 mm")))
sketch4.setExpression("Constraints[42]", "Params.sketch4_width")
sketch4.setExpression("Constraints[43]", "Params.sketch4_width2")
sketch4.setExpression("Constraints[44]", "Params.sketch4_width3")
sketch4.setExpression("Constraints[45]", "Params.sketch4_width4")
sketch4.setExpression("Constraints[46]", "Params.sketch4_height")
pocket2 = body.newObject("PartDesign::Pocket", "Pocket001")
pocket2.Profile = sketch4
pocket2.setExpression("Length", "Params.pocket2_length")

doc.recompute()
